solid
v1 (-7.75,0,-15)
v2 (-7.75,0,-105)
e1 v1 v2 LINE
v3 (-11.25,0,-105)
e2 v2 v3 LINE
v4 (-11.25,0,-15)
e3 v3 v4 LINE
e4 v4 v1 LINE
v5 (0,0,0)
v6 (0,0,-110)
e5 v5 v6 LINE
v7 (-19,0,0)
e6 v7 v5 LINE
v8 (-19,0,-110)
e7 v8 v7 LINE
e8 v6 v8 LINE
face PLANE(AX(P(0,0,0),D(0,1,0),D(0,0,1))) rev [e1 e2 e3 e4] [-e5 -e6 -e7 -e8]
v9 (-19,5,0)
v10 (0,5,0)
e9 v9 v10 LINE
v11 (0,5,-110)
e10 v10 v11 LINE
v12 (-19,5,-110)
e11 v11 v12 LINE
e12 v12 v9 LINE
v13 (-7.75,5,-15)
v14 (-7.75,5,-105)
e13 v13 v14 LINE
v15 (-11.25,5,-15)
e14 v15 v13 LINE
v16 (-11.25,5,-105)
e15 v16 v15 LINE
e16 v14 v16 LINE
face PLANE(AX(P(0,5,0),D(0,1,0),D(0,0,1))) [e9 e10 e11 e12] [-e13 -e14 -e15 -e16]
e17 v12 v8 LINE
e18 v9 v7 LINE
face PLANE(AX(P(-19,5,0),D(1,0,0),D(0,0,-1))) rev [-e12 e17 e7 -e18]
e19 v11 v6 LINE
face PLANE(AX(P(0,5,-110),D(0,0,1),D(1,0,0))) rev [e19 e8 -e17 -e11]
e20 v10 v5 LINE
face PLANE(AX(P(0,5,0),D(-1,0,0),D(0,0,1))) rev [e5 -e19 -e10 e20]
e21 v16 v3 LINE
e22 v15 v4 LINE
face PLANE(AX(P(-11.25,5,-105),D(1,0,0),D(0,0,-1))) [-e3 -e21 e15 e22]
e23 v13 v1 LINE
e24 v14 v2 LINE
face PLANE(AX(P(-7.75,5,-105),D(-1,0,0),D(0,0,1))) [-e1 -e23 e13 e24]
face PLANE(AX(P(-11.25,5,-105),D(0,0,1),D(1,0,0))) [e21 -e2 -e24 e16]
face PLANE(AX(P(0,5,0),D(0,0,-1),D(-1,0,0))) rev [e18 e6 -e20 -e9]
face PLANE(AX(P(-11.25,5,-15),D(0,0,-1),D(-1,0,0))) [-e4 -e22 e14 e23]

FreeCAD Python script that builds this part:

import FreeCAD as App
import Part
import Sketcher


def add_polygon(sketch, points):
    """Adds a closed chain of lines whose ends are joined by coincident constraints."""
    first, n = sketch.GeometryCount, len(points)
    for a, b in zip(points, points[1:] + points[:1]):
        sketch.addGeometry(Part.LineSegment(App.Vector(*a, 0), App.Vector(*b, 0)), False)
    for i in range(n):
        sketch.addConstraint(Sketcher.Constraint("Coincident", first + i, 2, first + (i + 1) % n, 1))

doc = App.newDocument("Part")
params = doc.addObject("Spreadsheet::Sheet", "Params")
for row, (alias, value) in enumerate([
    ("sketch1_width", "19 mm"),
    ("sketch1_height", "110 mm"),
    ("sketch1_height2", "90 mm"),
    ("sketch1_width2", "3.5 mm"),
    ("pad1_length", "5 mm"),
], start=1):
    params.set(f"A{row}", alias)
    params.set(f"B{row}", "=" + value)
    params.setAlias(f"B{row}", alias)

body = doc.addObject("PartDesign::Body", "Body")

# Sketch on XZ plane
sketch1 = doc.addObject("Sketcher::SketchObject", "Sketch")
body.addObject(sketch1)
sketch1.AttachmentSupport = (doc.XZ_Plane, [""])
sketch1.MapMode = "FlatFace"
add_polygon(sketch1, [(-19, -110), (-19, 0), (0, 0), (0, -110)])  # lines 0-3
add_polygon(sketch1, [(-7.8, -15), (-11.2, -15), (-11.2, -105), (-7.8, -105)])  # lines 4-7
sketch1.addConstraint([
    Sketcher.Constraint("Vertical", 0),
    Sketcher.Constraint("Horizontal", 1),
    Sketcher.Constraint("Vertical", 2),
    Sketcher.Constraint("Horizontal", 3),
    Sketcher.Constraint("Horizontal", 4),
    Sketcher.Constraint("Vertical", 5),
    Sketcher.Constraint("Horizontal", 6),
    Sketcher.Constraint("Vertical", 7),
    Sketcher.Constraint("Coincident", 1, 2, -1, 1),
    Sketcher.Constraint("DistanceX", 1, 1, 1, 2, 19.0),
    Sketcher.Constraint("DistanceY", 0, 1, 0, 2, 110.0),
    Sketcher.Constraint("DistanceY", 5, 2, 5, 1, 90.0),
    Sketcher.Constraint("DistanceX", 4, 2, 4, 1, 3.5),
    Sketcher.Constraint("DistanceY", 4, 2, -1, 1, 15.0),
    Sketcher.Constraint("DistanceX", 4, 2, -1, 1, 11.25),
])
sketch1.setExpression("Constraints[17]", "Params.sketch1_width")
sketch1.setExpression("Constraints[18]", "Params.sketch1_height")
sketch1.setExpression("Constraints[19]", "Params.sketch1_height2")
sketch1.setExpression("Constraints[20]", "Params.sketch1_width2")
pad1 = doc.addObject("PartDesign::Pad", "Pad")
body.addObject(pad1)
pad1.Profile = sketch1
pad1.setExpression("Length", "Params.pad1_length")
pad1.Reversed = True

doc.recompute()
